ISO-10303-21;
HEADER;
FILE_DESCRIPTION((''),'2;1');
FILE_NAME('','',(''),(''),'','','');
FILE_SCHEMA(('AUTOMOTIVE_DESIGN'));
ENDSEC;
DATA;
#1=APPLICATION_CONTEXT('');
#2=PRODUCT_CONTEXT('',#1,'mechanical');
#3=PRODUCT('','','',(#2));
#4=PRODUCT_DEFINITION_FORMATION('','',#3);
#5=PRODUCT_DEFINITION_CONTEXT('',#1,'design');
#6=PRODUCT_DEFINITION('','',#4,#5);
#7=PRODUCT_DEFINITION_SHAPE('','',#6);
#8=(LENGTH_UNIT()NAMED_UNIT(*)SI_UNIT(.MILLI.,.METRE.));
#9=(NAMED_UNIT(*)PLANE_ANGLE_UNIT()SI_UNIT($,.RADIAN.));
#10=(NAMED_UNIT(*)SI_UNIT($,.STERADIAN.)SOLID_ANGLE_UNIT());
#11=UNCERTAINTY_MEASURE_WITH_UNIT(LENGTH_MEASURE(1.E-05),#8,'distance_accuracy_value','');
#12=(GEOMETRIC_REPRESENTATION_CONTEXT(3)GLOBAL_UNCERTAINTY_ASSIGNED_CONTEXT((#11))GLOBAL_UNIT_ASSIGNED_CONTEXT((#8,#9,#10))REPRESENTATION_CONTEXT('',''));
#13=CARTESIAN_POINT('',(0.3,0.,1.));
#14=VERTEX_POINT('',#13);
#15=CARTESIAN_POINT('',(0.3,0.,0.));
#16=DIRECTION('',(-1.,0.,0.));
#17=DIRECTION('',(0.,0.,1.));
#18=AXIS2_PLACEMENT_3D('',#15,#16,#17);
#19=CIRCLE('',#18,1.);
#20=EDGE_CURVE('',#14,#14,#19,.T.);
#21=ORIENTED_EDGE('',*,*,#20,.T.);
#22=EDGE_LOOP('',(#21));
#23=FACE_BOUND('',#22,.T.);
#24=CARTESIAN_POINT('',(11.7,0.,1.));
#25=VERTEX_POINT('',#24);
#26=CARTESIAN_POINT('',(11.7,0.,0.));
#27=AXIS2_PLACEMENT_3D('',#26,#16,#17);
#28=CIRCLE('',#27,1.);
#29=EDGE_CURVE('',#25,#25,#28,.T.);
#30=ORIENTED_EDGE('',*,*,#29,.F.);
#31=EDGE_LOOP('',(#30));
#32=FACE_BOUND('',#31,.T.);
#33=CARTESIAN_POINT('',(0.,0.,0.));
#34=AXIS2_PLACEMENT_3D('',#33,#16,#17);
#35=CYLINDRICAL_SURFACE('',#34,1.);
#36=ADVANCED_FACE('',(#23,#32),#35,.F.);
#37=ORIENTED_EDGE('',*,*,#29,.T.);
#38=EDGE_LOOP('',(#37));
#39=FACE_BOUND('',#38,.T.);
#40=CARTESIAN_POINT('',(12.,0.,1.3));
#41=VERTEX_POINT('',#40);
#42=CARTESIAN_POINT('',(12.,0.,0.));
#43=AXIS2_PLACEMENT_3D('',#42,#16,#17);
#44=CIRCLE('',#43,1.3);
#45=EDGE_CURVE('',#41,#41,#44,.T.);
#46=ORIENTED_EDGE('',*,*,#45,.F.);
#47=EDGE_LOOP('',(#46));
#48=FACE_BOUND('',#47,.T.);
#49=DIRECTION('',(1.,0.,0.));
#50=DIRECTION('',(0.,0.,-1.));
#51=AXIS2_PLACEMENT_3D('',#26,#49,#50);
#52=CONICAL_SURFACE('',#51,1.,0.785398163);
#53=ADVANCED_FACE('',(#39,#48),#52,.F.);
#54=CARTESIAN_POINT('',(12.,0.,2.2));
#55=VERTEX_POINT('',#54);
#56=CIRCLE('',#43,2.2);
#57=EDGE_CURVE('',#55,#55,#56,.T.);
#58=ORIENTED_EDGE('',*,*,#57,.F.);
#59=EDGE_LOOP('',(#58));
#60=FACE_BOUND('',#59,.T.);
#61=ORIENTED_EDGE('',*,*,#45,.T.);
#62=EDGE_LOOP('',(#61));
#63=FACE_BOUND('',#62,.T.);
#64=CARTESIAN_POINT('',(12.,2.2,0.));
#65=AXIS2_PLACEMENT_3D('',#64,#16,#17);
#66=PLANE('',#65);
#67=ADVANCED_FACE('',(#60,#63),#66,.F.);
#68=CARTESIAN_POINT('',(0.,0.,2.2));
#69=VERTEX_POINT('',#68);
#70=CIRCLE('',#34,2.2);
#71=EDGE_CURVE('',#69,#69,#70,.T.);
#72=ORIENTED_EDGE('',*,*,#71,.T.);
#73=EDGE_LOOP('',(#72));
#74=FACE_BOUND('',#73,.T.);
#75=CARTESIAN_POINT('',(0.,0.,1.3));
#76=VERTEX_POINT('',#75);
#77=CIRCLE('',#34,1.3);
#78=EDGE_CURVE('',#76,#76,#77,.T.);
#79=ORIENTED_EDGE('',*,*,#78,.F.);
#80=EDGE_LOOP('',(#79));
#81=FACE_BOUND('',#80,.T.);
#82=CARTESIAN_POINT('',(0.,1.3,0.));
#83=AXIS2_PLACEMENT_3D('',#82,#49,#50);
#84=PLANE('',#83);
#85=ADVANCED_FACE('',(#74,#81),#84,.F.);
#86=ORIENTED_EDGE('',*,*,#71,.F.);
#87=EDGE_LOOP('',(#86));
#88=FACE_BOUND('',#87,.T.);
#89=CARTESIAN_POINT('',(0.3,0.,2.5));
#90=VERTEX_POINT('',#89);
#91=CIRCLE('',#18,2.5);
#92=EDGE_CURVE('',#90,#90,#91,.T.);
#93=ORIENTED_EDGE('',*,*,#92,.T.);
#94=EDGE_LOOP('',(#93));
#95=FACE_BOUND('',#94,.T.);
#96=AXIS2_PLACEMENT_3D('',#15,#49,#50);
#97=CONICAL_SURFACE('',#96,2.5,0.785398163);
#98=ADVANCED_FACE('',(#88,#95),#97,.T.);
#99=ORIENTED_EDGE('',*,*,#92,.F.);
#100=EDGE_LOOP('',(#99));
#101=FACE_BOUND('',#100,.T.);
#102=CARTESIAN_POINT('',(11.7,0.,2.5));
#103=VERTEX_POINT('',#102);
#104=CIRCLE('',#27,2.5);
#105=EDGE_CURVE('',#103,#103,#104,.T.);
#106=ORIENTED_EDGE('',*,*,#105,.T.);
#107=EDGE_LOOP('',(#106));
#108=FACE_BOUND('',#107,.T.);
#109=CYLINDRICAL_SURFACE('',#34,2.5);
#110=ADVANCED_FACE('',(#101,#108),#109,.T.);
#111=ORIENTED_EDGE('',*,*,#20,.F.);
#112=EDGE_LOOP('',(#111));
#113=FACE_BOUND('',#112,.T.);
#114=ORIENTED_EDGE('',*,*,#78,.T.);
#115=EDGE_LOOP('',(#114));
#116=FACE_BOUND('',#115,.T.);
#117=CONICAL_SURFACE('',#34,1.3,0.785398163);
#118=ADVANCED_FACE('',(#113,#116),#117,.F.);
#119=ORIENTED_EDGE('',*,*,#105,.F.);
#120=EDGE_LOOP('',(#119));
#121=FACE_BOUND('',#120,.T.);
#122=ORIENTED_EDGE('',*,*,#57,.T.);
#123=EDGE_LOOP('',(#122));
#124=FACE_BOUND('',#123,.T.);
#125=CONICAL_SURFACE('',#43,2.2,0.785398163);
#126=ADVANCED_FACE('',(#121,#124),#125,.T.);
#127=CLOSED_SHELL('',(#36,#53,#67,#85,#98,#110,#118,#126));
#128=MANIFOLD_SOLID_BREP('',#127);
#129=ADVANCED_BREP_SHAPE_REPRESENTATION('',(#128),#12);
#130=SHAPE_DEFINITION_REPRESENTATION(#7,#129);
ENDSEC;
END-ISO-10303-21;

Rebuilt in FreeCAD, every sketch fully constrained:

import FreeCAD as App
import Part
import Sketcher

V = App.Vector

doc = App.newDocument("Part")
body = doc.addObject("PartDesign::Body", "Body")

# Sketch on XY plane
sketch1 = body.newObject("Sketcher::SketchObject", "Sketch")
sketch1.AttachmentSupport = (doc.getObject("XY_Plane"), [""])
sketch1.MapMode = "FlatFace"
sketch1.addGeometry([
    Part.LineSegment(V(0, 2.2, 0), V(0, 1.3, 0)),  # 0
    Part.LineSegment(V(0, 1.3, 0), V(0.3, 1, 0)),  # 1
    Part.LineSegment(V(0.3, 1, 0), V(11.7, 1, 0)),  # 2
    Part.LineSegment(V(11.7, 1, 0), V(12, 1.3, 0)),  # 3
    Part.LineSegment(V(12, 1.3, 0), V(12, 2.2, 0)),  # 4
    Part.LineSegment(V(12, 2.2, 0), V(11.7, 2.5, 0)),  # 5
    Part.LineSegment(V(11.7, 2.5, 0), V(0.3, 2.5, 0)),  # 6
    Part.LineSegment(V(0.3, 2.5, 0), V(0, 2.2, 0)),  # 7
], False)
sketch1.addConstraint([
    Sketcher.Constraint("Coincident", 0, 2, 1, 1),
    Sketcher.Constraint("Coincident", 1, 2, 2, 1),
    Sketcher.Constraint("Coincident", 2, 2, 3, 1),
    Sketcher.Constraint("Coincident", 3, 2, 4, 1),
    Sketcher.Constraint("Coincident", 4, 2, 5, 1),
    Sketcher.Constraint("Coincident", 5, 2, 6, 1),
    Sketcher.Constraint("Coincident", 6, 2, 7, 1),
    Sketcher.Constraint("Coincident", 7, 2, 0, 1),
    Sketcher.Constraint("Vertical", 0),
    Sketcher.Constraint("Horizontal", 2),
    Sketcher.Constraint("Vertical", 4),
    Sketcher.Constraint("Horizontal", 6),
    Sketcher.Constraint("PointOnObject", 0, 2, -2),
    Sketcher.Constraint("Perpendicular", 1, 3),
    Sketcher.Constraint("Perpendicular", 3, 5),
    Sketcher.Constraint("Perpendicular", 5, 7),
    Sketcher.Constraint("Horizontal", 0, 2, 3, 2),
    Sketcher.Constraint("Horizontal", 4, 2, 7, 2),
    Sketcher.Constraint("Vertical", 2, 2, 5, 2),
    Sketcher.Constraint("Vertical", 1, 2, 6, 2),
    Sketcher.Constraint("DistanceX", 2, 1, 2, 2, 11.4),
    Sketcher.Constraint("DistanceY", 0, 2, 0, 1, 0.9),
    Sketcher.Constraint("DistanceY", -1, 1, 1, 2, 1.0),
    Sketcher.Constraint("DistanceX", -1, 1, 3, 2, 12.0),
])
revolution = body.newObject("PartDesign::Revolution", "Revolution")
revolution.Profile = sketch1
revolution.ReferenceAxis = (sketch1, ["H_Axis"])
revolution.Angle = 360

doc.recompute()
